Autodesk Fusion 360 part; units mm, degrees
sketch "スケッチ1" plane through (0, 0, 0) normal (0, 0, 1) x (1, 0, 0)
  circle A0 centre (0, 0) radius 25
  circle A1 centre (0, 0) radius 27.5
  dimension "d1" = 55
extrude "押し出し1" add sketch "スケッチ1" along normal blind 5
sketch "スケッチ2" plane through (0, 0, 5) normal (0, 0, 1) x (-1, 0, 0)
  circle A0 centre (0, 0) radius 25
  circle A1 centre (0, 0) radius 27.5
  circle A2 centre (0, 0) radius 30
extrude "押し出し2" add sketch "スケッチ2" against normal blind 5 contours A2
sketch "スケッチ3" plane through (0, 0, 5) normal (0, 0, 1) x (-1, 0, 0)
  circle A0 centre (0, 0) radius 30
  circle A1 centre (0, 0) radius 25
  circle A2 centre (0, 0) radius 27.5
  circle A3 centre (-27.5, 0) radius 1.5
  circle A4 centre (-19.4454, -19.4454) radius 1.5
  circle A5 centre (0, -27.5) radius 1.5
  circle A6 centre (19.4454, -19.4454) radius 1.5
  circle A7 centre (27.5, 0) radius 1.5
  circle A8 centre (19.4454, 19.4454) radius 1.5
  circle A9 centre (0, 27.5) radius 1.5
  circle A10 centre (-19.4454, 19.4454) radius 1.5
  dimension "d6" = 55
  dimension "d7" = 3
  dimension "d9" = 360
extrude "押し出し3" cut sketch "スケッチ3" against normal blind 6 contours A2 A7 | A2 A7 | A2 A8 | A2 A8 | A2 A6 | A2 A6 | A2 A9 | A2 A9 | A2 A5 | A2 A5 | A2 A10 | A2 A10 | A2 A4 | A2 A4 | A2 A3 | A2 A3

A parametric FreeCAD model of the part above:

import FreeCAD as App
import Part
import Sketcher

doc = App.newDocument("Part")
params = doc.addObject("Spreadsheet::Sheet", "Params")
for row, (alias, value) in enumerate([
    ("sketch1_diameter", "55 mm"),
    ("sketch1_diameter2", "50 mm"),
    ("pad1_length", "5 mm"),
    ("sketch2_diameter", "60 mm"),
    ("sketch2_diameter2", "55 mm"),
    ("pad2_length", "5 mm"),
    ("sketch3_diameter", "3 mm"),
    ("pocket1_length", "6 mm"),
], start=1):
    params.set(f"A{row}", alias)
    params.set(f"B{row}", "=" + value)
    params.setAlias(f"B{row}", alias)

body = doc.addObject("PartDesign::Body", "Body")

# Sketch on XY plane
sketch1 = body.newObject("Sketcher::SketchObject", "Sketch")
sketch1.AttachmentSupport = (doc.getObject("XY_Plane"), [""])
sketch1.MapMode = "FlatFace"
sketch1.addGeometry(Part.Circle(App.Vector(0, 0, 0), App.Vector(0, 0, 1), 28), False)
sketch1.addGeometry(Part.Circle(App.Vector(0, 0, 0), App.Vector(0, 0, 1), 25), False)
sketch1.addConstraint(Sketcher.Constraint("Coincident", 0, 3, -1, 1))
sketch1.addConstraint(Sketcher.Constraint("Coincident", 1, 3, -1, 1))
sketch1.addConstraint(Sketcher.Constraint("Diameter", 0, 55.0))
sketch1.addConstraint(Sketcher.Constraint("Diameter", 1, 50.0))
sketch1.setExpression("Constraints[2]", "Params.sketch1_diameter")
sketch1.setExpression("Constraints[3]", "Params.sketch1_diameter2")
pad1 = body.newObject("PartDesign::Pad", "Pad")
pad1.Profile = sketch1
pad1.setExpression("Length", "Params.pad1_length")

# Sketch on XY plane
sketch2 = body.newObject("Sketcher::SketchObject", "Sketch001")
sketch2.AttachmentSupport = (doc.getObject("XY_Plane"), [""])
sketch2.MapMode = "FlatFace"
sketch2.AttachmentOffset = App.Placement(App.Vector(0, 0, 5), App.Rotation())
sketch2.addGeometry(Part.Circle(App.Vector(0, 0, 0), App.Vector(0, 0, 1), 30), False)
sketch2.addGeometry(Part.Circle(App.Vector(0, 0, 0), App.Vector(0, 0, 1), 28), False)
sketch2.addConstraint(Sketcher.Constraint("Coincident", 0, 3, -1, 1))
sketch2.addConstraint(Sketcher.Constraint("Coincident", 1, 3, -1, 1))
sketch2.addConstraint(Sketcher.Constraint("Diameter", 0, 60.0))
sketch2.addConstraint(Sketcher.Constraint("Diameter", 1, 55.0))
sketch2.setExpression("Constraints[2]", "Params.sketch2_diameter")
sketch2.setExpression("Constraints[3]", "Params.sketch2_diameter2")
pad2 = body.newObject("PartDesign::Pad", "Pad001")
pad2.Profile = sketch2
pad2.setExpression("Length", "Params.pad2_length")
pad2.Reversed = True

# Sketch on XY plane
sketch3 = body.newObject("Sketcher::SketchObject", "Sketch002")
sketch3.AttachmentSupport = (doc.getObject("XY_Plane"), [""])
sketch3.MapMode = "FlatFace"
sketch3.AttachmentOffset = App.Placement(App.Vector(0, 0, 5), App.Rotation())
sketch3.addGeometry(Part.Circle(App.Vector(-27.5, 0, 0), App.Vector(0, 0, 1), 1.5), False)
sketch3.addGeometry(Part.Circle(App.Vector(-19.4, -19.4, 0), App.Vector(0, 0, 1), 1.5), False)
sketch3.addGeometry(Part.Circle(App.Vector(-19.4, 19.4, 0), App.Vector(0, 0, 1), 1.5), False)
sketch3.addGeometry(Part.Circle(App.Vector(0, -27.5, 0), App.Vector(0, 0, 1), 1.5), False)
sketch3.addGeometry(Part.Circle(App.Vector(0, 27.5, 0), App.Vector(0, 0, 1), 1.5), False)
sketch3.addGeometry(Part.Circle(App.Vector(19.4, -19.4, 0), App.Vector(0, 0, 1), 1.5), False)
sketch3.addGeometry(Part.Circle(App.Vector(19.4, 19.4, 0), App.Vector(0, 0, 1), 1.5), False)
sketch3.addGeometry(Part.Circle(App.Vector(27.5, 0, 0), App.Vector(0, 0, 1), 1.5), False)
sketch3.addConstraint(Sketcher.Constraint("Equal", 0, 1))
sketch3.addConstraint(Sketcher.Constraint("Equal", 1, 2))
sketch3.addConstraint(Sketcher.Constraint("Equal", 2, 3))
sketch3.addConstraint(Sketcher.Constraint("Equal", 3, 4))
sketch3.addConstraint(Sketcher.Constraint("Equal", 4, 5))
sketch3.addConstraint(Sketcher.Constraint("Equal", 5, 6))
sketch3.addConstraint(Sketcher.Constraint("Equal", 6, 7))
sketch3.addConstraint(Sketcher.Constraint("Symmetric", 3, 3, 4, 3, -1, 1))
sketch3.addConstraint(Sketcher.Constraint("Symmetric", 2, 3, 5, 3, -1, 1))
sketch3.addConstraint(Sketcher.Constraint("Symmetric", 1, 3, 6, 3, -1, 1))
sketch3.addConstraint(Sketcher.Constraint("Symmetric", 0, 3, 7, 3, -1, 1))
sketch3.addConstraint(Sketcher.Constraint("Symmetric", 1, 3, 5, 3, -2))
sketch3.addConstraint(Sketcher.Constraint("PointOnObject", 0, 3, -1))
sketch3.addConstraint(Sketcher.Constraint("PointOnObject", 3, 3, -2))
sketch3.addConstraint(Sketcher.Constraint("Diameter", 0, 3.0))
sketch3.addConstraint(Sketcher.Constraint("DistanceY", 3, 3, 4, 3, 55.0))
sketch3.addConstraint(Sketcher.Constraint("DistanceX", 0, 3, -1, 1, 27.5))
sketch3.addConstraint(Sketcher.Constraint("DistanceX", 1, 3, -1, 1, 19.4454))
sketch3.addConstraint(Sketcher.Constraint("DistanceY", 1, 3, -1, 1, 19.4454))
sketch3.setExpression("Constraints[14]", "Params.sketch3_diameter")
pocket1 = body.newObject("PartDesign::Pocket", "Pocket")
pocket1.Profile = sketch3
pocket1.setExpression("Length", "Params.pocket1_length")

doc.recompute()
